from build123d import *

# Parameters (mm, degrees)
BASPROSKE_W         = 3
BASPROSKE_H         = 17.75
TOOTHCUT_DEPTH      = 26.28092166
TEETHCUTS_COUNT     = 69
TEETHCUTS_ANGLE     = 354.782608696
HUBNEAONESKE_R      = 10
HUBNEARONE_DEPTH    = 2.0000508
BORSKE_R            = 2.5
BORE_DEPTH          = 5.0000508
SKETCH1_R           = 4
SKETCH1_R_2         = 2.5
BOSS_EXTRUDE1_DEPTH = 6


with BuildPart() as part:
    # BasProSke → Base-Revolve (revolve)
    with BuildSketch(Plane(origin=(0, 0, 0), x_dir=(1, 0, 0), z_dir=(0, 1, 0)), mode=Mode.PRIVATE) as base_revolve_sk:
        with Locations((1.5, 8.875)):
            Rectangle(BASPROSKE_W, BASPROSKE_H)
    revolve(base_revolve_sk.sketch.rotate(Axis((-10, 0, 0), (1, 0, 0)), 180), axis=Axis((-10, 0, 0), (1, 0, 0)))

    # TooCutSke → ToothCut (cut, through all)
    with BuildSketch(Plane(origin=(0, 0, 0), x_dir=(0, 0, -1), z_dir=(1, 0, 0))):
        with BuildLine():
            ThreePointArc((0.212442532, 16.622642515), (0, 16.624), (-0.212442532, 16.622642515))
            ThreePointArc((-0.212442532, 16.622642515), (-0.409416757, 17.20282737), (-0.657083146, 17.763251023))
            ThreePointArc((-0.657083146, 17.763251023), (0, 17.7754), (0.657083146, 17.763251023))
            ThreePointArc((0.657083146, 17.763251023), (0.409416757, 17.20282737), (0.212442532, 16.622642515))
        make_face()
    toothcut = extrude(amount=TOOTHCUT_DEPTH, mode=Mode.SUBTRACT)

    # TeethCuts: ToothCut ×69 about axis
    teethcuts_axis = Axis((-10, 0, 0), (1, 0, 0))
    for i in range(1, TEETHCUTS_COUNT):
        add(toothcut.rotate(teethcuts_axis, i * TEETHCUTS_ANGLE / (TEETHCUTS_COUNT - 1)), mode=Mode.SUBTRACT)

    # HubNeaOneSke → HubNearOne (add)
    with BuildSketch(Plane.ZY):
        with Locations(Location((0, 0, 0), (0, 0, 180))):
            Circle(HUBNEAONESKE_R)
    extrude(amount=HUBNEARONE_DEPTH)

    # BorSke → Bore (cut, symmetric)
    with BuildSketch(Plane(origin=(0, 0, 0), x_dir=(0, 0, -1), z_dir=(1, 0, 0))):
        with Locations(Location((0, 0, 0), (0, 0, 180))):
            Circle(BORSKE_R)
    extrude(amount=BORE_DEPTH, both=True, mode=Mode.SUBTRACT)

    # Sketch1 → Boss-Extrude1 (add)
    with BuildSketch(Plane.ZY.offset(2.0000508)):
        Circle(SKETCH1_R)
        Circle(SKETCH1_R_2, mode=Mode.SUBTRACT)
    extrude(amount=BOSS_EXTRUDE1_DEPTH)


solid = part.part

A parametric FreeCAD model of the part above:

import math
import FreeCAD as App
import Part
import Sketcher
from FreeCAD import Vector
Q = App.Units.Quantity

doc = App.newDocument("Part")
body = doc.addObject("PartDesign::Body", "Body")

sketch1 = doc.addObject("Sketcher::SketchObject", "Sketch")
body.addObject(sketch1)
sketch1.AttachmentSupport = (doc.XZ_Plane, [""])
sketch1.MapMode = "FlatFace"
sketch1.addGeometry(Part.LineSegment(Vector(0, -17.8, 0), Vector(0, 0, 0)), False)
sketch1.addGeometry(Part.LineSegment(Vector(0, 0, 0), Vector(3, 0, 0)), False)
sketch1.addGeometry(Part.LineSegment(Vector(3, 0, 0), Vector(3, -17.8, 0)), False)
sketch1.addGeometry(Part.LineSegment(Vector(3, -17.8, 0), Vector(0, -17.8, 0)), False)
sketch1.addConstraint(Sketcher.Constraint("Coincident", 0, 2, 1, 1))
sketch1.addConstraint(Sketcher.Constraint("Coincident", 1, 2, 2, 1))
sketch1.addConstraint(Sketcher.Constraint("Coincident", 2, 2, 3, 1))
sketch1.addConstraint(Sketcher.Constraint("Coincident", 3, 2, 0, 1))
sketch1.addConstraint(Sketcher.Constraint("Vertical", 0))
sketch1.addConstraint(Sketcher.Constraint("Horizontal", 1))
sketch1.addConstraint(Sketcher.Constraint("Vertical", 2))
sketch1.addConstraint(Sketcher.Constraint("Horizontal", 3))
sketch1.addConstraint(Sketcher.Constraint("Coincident", 0, 2, -1, 1))
sketch1.addConstraint(Sketcher.Constraint("DistanceX", 1, 1, 1, 2, Q("3 mm")))
sketch1.addConstraint(Sketcher.Constraint("DistanceY", 0, 1, 0, 2, Q("17.75 mm")))
revolution = doc.addObject("PartDesign::Revolution", "Revolution")
body.addObject(revolution)
revolution.Profile = sketch1
revolution.ReferenceAxis = (sketch1, ["H_Axis"])
revolution.Angle = 360

sketch2 = doc.addObject("Sketcher::SketchObject", "Sketch001")
body.addObject(sketch2)
sketch2.AttachmentSupport = (doc.YZ_Plane, [""])
sketch2.MapMode = "FlatFace"
sketch2.addGeometry(Part.ArcOfCircle(Part.Circle(Vector(0, 0, 0), Vector(0, 0, 1), 16.62), math.radians(-0.73), math.radians(0.73)), False)
sketch2.addGeometry(Part.ArcOfCircle(Part.Circle(Vector(14.7, -6.84, 0), Vector(0, 0, 1), 6.9), math.radians(63.61), math.radians(73.79)), False)
sketch2.addGeometry(Part.ArcOfCircle(Part.Circle(Vector(0, 0, 0), Vector(0, 0, 1), 17.78), math.radians(-2.12), math.radians(2.12)), False)
sketch2.addGeometry(Part.ArcOfCircle(Part.Circle(Vector(14.7, 6.84, 0), Vector(0, 0, 1), 6.9), math.radians(-73.79), math.radians(-63.61)), False)
sketch2.addConstraint(Sketcher.Constraint("Coincident", 0, 1, 1, 2))
sketch2.addConstraint(Sketcher.Constraint("Coincident", 1, 1, 2, 1))
sketch2.addConstraint(Sketcher.Constraint("Coincident", 2, 2, 3, 2))
sketch2.addConstraint(Sketcher.Constraint("Coincident", 3, 1, 0, 2))
sketch2.addConstraint(Sketcher.Constraint("Coincident", 0, 3, -1, 1))
sketch2.addConstraint(Sketcher.Constraint("Coincident", 2, 3, -1, 1))
sketch2.addConstraint(Sketcher.Constraint("Equal", 1, 3))
sketch2.addConstraint(Sketcher.Constraint("Symmetric", 1, 3, 3, 3, -1))
sketch2.addConstraint(Sketcher.Constraint("Radius", 1, Q("6.9 mm")))
sketch2.addConstraint(Sketcher.Constraint("Radius", 2, Q("17.7754 mm")))
sketch2.addConstraint(Sketcher.Constraint("Radius", 0, Q("16.624004 mm")))
sketch2.addConstraint(Sketcher.Constraint("DistanceY", 1, 3, -1, 1, Q("6.838209 mm")))
sketch2.addConstraint(Sketcher.Constraint("DistanceX", -1, 1, 2, 2, Q("17.763251 mm")))
pocket1 = doc.addObject("PartDesign::Pocket", "Pocket")
body.addObject(pocket1)
pocket1.Profile = sketch2
pocket1.Type = "ThroughAll"
pocket1.Reversed = True
doc.recompute()

polarpattern = doc.addObject("PartDesign::PolarPattern", "PolarPattern")
body.addObject(polarpattern)
polarpattern.Originals = [pocket1]
polarpattern.Axis = (doc.X_Axis, [""])
polarpattern.Angle = 360
polarpattern.Occurrences = 69
body.Tip = polarpattern

sketch3 = doc.addObject("Sketcher::SketchObject", "Sketch002")
body.addObject(sketch3)
sketch3.AttachmentSupport = (doc.YZ_Plane, [""])
sketch3.MapMode = "FlatFace"
sketch3.addGeometry(Part.Circle(Vector(0, 0, 0), Vector(0, 0, 1), 10), False)
sketch3.addConstraint(Sketcher.Constraint("Coincident", 0, 3, -1, 1))
sketch3.addConstraint(Sketcher.Constraint("Diameter", 0, Q("20 mm")))
pad1 = doc.addObject("PartDesign::Pad", "Pad")
body.addObject(pad1)
pad1.Profile = sketch3
pad1.Length = 2.000051
pad1.Reversed = True

sketch4 = doc.addObject("Sketcher::SketchObject", "Sketch003")
body.addObject(sketch4)
sketch4.AttachmentSupport = (doc.YZ_Plane, [""])
sketch4.MapMode = "FlatFace"
sketch4.addGeometry(Part.Circle(Vector(0, 0, 0), Vector(0, 0, 1), 2.5), False)
sketch4.addConstraint(Sketcher.Constraint("Coincident", 0, 3, -1, 1))
sketch4.addConstraint(Sketcher.Constraint("Diameter", 0, Q("5 mm")))
pocket2 = doc.addObject("PartDesign::Pocket", "Pocket001")
body.addObject(pocket2)
pocket2.Profile = sketch4
pocket2.Length = 10.000102
pocket2.Midplane = True

sketch5 = doc.addObject("Sketcher::SketchObject", "Sketch004")
body.addObject(sketch5)
sketch5.AttachmentSupport = (doc.YZ_Plane, [""])
sketch5.MapMode = "FlatFace"
sketch5.AttachmentOffset = App.Placement(Vector(0, 0, -2.000051), App.Rotation())
sketch5.addGeometry(Part.Circle(Vector(0, 0, 0), Vector(0, 0, 1), 4), False)
sketch5.addGeometry(Part.Circle(Vector(0, 0, 0), Vector(0, 0, 1), 2.5), False)
sketch5.addConstraint(Sketcher.Constraint("Coincident", 0, 3, -1, 1))
sketch5.addConstraint(Sketcher.Constraint("Coincident", 1, 3, -1, 1))
sketch5.addConstraint(Sketcher.Constraint("Diameter", 0, Q("8 mm")))
sketch5.addConstraint(Sketcher.Constraint("Diameter", 1, Q("5 mm")))
pad2 = doc.addObject("PartDesign::Pad", "Pad001")
body.addObject(pad2)
pad2.Profile = sketch5
pad2.Length = 6
pad2.Reversed = True

doc.recompute()
